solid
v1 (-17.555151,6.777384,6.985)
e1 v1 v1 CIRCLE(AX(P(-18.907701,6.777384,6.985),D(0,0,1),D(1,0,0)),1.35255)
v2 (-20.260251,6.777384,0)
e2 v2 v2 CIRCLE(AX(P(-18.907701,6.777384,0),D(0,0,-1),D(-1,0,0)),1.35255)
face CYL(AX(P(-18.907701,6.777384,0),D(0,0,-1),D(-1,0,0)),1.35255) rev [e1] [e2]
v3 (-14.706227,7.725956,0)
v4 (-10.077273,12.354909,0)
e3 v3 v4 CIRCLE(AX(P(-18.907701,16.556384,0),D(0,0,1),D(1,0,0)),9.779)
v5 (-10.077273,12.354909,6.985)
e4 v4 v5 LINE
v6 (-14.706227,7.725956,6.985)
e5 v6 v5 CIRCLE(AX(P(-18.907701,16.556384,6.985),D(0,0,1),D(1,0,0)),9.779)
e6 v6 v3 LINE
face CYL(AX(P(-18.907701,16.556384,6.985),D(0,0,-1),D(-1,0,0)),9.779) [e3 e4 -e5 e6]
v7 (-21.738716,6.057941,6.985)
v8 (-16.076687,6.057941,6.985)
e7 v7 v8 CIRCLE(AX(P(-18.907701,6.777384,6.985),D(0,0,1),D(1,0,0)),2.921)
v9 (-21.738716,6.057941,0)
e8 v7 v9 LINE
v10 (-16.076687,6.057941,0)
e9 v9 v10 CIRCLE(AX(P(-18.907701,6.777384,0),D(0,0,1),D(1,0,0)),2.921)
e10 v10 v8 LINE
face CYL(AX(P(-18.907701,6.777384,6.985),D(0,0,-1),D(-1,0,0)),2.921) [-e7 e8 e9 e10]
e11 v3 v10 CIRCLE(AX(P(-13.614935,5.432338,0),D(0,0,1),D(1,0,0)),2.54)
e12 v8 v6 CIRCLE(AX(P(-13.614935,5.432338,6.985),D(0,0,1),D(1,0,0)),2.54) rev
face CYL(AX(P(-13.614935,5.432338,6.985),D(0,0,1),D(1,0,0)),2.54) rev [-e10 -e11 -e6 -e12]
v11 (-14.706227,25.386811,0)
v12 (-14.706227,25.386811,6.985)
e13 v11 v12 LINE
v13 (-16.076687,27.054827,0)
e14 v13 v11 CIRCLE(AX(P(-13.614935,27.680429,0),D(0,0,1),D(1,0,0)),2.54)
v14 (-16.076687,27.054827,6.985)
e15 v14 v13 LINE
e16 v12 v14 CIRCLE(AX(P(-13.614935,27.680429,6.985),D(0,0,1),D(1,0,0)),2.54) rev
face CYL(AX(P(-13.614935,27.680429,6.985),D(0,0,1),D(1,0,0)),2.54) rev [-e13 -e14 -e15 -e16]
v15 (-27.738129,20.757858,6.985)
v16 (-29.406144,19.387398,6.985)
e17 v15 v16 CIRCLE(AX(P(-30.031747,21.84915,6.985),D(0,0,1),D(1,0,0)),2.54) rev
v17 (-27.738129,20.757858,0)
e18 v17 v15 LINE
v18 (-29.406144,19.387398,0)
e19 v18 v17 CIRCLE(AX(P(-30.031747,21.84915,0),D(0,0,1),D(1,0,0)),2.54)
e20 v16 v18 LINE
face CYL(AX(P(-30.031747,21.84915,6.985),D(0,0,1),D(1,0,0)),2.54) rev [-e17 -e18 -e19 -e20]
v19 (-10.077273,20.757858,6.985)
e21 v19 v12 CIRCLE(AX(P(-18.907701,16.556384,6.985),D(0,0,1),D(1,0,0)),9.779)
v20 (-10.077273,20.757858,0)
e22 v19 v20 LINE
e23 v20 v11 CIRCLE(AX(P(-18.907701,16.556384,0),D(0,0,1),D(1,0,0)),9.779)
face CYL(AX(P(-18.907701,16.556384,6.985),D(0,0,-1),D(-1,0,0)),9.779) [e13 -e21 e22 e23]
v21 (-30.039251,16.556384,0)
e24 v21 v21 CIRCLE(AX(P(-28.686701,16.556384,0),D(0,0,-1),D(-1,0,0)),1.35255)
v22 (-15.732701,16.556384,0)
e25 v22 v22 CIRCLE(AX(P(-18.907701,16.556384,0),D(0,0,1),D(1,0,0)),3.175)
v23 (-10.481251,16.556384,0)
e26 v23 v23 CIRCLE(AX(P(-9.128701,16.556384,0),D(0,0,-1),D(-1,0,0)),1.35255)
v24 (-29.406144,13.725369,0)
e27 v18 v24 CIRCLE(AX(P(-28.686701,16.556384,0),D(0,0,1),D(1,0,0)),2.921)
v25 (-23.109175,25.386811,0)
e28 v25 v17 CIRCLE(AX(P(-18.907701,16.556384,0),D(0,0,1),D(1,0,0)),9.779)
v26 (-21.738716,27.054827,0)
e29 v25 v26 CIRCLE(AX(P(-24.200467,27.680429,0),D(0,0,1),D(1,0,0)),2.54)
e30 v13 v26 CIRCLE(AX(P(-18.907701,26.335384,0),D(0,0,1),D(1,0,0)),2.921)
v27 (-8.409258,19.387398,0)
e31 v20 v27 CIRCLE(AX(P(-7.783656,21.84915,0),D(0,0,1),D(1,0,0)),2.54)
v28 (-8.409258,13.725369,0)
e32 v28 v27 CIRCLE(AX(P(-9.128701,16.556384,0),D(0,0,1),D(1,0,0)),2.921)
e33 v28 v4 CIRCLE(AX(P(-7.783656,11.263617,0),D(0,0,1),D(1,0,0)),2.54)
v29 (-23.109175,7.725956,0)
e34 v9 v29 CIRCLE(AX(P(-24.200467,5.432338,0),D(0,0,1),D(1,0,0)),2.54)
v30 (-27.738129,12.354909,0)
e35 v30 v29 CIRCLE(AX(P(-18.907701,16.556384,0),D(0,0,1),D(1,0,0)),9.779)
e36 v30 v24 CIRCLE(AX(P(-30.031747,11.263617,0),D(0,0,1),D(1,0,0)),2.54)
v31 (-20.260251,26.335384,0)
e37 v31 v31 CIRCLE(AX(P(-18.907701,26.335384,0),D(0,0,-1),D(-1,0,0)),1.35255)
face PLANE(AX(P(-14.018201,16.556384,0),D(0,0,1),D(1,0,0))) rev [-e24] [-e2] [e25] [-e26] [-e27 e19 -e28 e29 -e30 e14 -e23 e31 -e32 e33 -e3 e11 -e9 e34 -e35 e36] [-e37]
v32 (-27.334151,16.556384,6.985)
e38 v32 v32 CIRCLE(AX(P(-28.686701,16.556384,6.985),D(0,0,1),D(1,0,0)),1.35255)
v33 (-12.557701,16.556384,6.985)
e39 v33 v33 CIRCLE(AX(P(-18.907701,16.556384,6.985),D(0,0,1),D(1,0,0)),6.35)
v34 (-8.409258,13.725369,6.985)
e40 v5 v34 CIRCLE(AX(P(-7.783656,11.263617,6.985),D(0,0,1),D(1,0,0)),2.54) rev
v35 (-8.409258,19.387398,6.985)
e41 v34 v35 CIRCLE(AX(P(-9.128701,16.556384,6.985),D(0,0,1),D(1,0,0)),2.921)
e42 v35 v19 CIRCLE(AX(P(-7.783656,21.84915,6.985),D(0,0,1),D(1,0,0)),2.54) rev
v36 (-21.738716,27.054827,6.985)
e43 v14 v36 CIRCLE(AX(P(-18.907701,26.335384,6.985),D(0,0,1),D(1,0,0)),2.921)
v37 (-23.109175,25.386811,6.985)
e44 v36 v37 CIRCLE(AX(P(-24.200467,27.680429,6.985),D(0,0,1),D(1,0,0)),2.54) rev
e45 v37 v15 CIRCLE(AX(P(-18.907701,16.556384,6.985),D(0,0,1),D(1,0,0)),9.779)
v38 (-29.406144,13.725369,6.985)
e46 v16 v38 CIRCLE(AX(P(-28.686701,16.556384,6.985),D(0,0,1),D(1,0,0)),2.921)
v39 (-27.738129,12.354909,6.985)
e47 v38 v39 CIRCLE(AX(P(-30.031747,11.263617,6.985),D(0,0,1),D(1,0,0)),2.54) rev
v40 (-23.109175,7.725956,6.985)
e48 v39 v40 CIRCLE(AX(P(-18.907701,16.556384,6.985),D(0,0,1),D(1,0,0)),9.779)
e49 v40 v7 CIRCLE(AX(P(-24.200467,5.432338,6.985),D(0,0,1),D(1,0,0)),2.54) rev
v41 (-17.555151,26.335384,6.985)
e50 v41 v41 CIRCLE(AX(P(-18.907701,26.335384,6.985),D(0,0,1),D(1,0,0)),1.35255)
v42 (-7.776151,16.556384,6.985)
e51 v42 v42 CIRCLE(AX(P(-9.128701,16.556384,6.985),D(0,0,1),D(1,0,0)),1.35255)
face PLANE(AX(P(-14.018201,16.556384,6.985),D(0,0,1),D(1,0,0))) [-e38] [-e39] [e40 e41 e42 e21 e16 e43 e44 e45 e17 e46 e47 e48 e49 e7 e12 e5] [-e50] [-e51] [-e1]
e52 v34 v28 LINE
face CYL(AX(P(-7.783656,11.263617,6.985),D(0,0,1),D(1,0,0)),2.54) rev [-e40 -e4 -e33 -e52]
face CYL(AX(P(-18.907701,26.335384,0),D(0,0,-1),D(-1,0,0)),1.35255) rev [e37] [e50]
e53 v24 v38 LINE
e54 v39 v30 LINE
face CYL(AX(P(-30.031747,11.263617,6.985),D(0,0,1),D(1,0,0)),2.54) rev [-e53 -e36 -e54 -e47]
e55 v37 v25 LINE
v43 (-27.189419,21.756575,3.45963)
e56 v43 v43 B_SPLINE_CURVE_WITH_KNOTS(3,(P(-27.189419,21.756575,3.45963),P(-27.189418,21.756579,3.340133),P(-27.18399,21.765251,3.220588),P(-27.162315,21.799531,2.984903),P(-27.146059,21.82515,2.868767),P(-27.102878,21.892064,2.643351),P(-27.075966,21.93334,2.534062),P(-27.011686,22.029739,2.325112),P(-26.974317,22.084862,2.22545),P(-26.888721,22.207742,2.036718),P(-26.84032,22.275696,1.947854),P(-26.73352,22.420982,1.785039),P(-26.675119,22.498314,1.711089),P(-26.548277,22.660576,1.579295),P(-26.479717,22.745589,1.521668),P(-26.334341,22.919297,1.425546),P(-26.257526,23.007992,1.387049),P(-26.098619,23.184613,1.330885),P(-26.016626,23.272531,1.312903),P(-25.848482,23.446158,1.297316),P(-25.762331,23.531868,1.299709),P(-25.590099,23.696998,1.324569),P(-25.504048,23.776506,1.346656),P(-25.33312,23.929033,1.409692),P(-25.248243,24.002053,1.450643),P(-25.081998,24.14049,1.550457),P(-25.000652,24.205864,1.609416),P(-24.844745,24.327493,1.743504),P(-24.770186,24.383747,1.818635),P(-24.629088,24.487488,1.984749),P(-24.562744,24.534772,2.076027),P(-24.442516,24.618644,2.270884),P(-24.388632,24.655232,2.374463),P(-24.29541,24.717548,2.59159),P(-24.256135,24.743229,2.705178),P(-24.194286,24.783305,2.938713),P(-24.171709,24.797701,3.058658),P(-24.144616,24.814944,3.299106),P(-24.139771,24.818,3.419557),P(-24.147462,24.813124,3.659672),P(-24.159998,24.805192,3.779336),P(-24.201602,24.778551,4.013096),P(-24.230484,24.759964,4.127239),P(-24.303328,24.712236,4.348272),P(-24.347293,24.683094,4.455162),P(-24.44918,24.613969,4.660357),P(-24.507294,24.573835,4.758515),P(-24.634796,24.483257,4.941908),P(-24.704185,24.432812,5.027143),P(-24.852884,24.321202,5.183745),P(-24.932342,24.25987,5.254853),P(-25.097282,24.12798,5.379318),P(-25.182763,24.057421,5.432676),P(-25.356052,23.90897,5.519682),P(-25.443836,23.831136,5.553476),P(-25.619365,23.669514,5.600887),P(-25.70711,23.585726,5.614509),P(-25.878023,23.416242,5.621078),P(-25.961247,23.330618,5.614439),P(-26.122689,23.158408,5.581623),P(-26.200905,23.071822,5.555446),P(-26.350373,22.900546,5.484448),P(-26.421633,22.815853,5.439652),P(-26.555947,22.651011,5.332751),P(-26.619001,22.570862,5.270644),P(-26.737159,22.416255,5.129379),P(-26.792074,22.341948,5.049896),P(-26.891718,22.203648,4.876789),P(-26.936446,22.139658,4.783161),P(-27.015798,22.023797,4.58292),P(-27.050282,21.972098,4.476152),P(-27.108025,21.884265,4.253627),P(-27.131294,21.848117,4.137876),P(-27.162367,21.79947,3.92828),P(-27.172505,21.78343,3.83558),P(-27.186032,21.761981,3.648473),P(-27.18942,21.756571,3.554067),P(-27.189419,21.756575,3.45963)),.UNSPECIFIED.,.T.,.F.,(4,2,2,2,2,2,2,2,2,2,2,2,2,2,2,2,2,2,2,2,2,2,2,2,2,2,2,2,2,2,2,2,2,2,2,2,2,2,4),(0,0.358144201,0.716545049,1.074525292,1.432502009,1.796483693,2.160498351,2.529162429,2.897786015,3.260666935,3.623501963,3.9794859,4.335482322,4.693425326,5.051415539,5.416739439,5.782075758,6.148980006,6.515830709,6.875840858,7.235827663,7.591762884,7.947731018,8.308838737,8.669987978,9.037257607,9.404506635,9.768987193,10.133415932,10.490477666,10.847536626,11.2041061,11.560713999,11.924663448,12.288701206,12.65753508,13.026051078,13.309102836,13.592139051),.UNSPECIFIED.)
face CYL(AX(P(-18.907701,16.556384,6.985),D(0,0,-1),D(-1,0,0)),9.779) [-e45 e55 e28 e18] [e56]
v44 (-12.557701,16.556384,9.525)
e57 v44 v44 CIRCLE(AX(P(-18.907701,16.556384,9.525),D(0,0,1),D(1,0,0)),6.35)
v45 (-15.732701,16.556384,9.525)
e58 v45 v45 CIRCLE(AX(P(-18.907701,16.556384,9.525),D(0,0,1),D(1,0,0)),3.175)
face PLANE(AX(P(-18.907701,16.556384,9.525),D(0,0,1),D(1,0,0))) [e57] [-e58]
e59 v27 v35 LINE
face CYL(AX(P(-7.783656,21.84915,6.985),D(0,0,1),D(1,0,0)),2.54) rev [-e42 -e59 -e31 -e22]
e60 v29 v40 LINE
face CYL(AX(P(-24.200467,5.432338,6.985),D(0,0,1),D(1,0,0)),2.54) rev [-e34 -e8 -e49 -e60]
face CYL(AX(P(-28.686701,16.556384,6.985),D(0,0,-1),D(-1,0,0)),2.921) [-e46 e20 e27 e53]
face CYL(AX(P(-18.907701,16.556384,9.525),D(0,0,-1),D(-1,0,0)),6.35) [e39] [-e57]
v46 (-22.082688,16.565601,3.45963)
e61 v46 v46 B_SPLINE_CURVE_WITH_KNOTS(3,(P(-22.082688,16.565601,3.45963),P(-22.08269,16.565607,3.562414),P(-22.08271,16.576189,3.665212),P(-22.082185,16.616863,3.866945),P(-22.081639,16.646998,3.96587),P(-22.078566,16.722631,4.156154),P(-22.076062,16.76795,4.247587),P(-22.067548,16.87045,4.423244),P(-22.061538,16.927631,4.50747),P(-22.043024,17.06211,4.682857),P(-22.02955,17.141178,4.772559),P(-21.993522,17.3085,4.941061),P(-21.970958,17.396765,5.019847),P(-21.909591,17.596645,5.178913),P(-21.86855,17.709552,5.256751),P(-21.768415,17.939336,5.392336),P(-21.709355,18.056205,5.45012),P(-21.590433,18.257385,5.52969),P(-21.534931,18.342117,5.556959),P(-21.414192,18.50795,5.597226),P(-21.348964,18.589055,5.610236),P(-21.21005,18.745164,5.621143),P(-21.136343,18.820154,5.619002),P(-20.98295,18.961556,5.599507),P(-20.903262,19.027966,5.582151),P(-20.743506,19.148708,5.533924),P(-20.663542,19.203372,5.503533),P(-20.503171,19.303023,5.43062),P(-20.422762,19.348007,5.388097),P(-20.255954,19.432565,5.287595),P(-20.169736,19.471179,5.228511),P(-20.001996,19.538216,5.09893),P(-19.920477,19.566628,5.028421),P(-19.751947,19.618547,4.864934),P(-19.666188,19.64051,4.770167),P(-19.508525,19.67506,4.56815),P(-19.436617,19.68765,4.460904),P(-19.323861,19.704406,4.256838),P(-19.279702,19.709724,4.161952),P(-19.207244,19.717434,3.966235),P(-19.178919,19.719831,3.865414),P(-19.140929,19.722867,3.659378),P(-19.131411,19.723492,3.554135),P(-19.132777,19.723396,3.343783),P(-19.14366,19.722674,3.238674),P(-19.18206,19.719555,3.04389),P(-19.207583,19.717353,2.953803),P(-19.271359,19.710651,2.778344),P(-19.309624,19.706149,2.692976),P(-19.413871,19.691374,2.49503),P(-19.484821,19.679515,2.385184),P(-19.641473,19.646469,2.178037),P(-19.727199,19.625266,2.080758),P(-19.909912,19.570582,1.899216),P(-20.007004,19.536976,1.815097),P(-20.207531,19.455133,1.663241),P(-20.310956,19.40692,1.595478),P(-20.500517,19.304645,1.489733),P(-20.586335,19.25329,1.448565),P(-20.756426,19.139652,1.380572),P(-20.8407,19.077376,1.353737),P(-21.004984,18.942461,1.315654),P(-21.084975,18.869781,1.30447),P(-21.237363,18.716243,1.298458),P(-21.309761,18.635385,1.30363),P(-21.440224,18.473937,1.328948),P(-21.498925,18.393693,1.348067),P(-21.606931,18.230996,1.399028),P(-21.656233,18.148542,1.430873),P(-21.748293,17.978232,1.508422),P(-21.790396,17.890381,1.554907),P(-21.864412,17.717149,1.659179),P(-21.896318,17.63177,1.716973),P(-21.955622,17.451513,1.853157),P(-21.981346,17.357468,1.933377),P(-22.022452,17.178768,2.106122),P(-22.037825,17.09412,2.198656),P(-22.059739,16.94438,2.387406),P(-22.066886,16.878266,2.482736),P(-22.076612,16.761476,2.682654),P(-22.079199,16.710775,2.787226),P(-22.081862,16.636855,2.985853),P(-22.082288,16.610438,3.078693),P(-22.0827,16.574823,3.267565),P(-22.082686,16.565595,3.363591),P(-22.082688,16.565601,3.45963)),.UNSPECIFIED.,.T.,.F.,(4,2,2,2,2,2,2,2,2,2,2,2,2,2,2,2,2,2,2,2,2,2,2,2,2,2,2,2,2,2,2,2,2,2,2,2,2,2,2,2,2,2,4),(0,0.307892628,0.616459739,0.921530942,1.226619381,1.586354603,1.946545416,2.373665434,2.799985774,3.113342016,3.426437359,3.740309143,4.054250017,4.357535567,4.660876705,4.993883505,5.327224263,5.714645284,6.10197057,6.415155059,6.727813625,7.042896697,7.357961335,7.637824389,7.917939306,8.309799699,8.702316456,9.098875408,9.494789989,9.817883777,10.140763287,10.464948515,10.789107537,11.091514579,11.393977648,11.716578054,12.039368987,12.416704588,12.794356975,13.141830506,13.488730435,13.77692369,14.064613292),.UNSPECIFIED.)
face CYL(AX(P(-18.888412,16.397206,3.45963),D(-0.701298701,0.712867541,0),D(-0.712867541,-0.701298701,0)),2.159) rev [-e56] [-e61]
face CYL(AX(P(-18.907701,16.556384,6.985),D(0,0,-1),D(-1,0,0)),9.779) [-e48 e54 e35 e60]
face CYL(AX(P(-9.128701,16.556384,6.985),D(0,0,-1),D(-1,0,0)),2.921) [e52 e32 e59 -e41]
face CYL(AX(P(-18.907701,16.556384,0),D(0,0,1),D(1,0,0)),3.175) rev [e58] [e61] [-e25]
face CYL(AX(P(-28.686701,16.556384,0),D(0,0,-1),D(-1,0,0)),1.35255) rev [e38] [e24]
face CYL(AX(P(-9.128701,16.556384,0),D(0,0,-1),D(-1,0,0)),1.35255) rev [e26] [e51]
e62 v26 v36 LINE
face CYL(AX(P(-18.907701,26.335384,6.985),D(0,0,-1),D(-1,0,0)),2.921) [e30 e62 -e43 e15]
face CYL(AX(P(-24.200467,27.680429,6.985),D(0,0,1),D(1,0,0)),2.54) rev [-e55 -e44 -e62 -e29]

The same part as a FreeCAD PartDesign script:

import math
import FreeCAD as App
import Part
import Sketcher
Q = App.Units.Quantity


def edges_at(feature, points):
    """Names of the edges that pass closest to the given points."""
    edges = feature.Shape.Edges
    near = lambda p: min(range(len(edges)), key=lambda i: edges[i].distToShape(Part.Vertex(*p))[0])
    return sorted({f"Edge{near(p) + 1}" for p in points})

doc = App.newDocument("Part")
body = doc.addObject("PartDesign::Body", "Body")

# Sketch on XY plane
sketch1 = body.newObject("Sketcher::SketchObject", "Sketch")
sketch1.AttachmentSupport = (doc.getObject("XY_Plane"), [""])
sketch1.MapMode = "FlatFace"
sketch1.addGeometry(Part.ArcOfCircle(Part.Circle(App.Vector(-18.9, 16.6, 0), App.Vector(0, 0, 1), 9.8), math.radians(107), math.radians(163)), False)
sketch1.addGeometry(Part.ArcOfCircle(Part.Circle(App.Vector(-28.7, 16.6, 0), App.Vector(0, 0, 1), 2.9), math.radians(81), math.radians(279)), False)
sketch1.addGeometry(Part.ArcOfCircle(Part.Circle(App.Vector(-18.9, 16.6, 0), App.Vector(0, 0, 1), 9.8), math.radians(-163), math.radians(-107)), False)
sketch1.addGeometry(Part.ArcOfCircle(Part.Circle(App.Vector(-18.9, 6.8, 0), App.Vector(0, 0, 1), 2.9), math.radians(171), math.radians(369)), False)
sketch1.addGeometry(Part.ArcOfCircle(Part.Circle(App.Vector(-18.9, 16.6, 0), App.Vector(0, 0, 1), 9.8), math.radians(-73), math.radians(-17)), False)
sketch1.addGeometry(Part.ArcOfCircle(Part.Circle(App.Vector(-9.1, 16.6, 0), App.Vector(0, 0, 1), 2.9), math.radians(-99), math.radians(99)), False)
sketch1.addGeometry(Part.ArcOfCircle(Part.Circle(App.Vector(-18.9, 16.6, 0), App.Vector(0, 0, 1), 9.8), math.radians(17), math.radians(73)), False)
sketch1.addGeometry(Part.ArcOfCircle(Part.Circle(App.Vector(-18.9, 26.3, 0), App.Vector(0, 0, 1), 2.9), math.radians(-9), math.radians(189)), False)
sketch1.addConstraint(Sketcher.Constraint("Coincident", 0, 2, 1, 1))
sketch1.addConstraint(Sketcher.Constraint("Coincident", 1, 2, 2, 1))
sketch1.addConstraint(Sketcher.Constraint("Coincident", 2, 2, 3, 1))
sketch1.addConstraint(Sketcher.Constraint("Coincident", 3, 2, 4, 1))
sketch1.addConstraint(Sketcher.Constraint("Coincident", 4, 2, 5, 1))
sketch1.addConstraint(Sketcher.Constraint("Coincident", 5, 2, 6, 1))
sketch1.addConstraint(Sketcher.Constraint("Coincident", 6, 2, 7, 1))
sketch1.addConstraint(Sketcher.Constraint("Coincident", 7, 2, 0, 1))
sketch1.addConstraint(Sketcher.Constraint("Coincident", 2, 3, 0, 3))
sketch1.addConstraint(Sketcher.Constraint("Coincident", 4, 3, 0, 3))
sketch1.addConstraint(Sketcher.Constraint("Coincident", 6, 3, 0, 3))
sketch1.addConstraint(Sketcher.Constraint("Equal", 0, 2))
sketch1.addConstraint(Sketcher.Constraint("Equal", 1, 3))
sketch1.addConstraint(Sketcher.Constraint("Equal", 2, 4))
sketch1.addConstraint(Sketcher.Constraint("Equal", 3, 5))
sketch1.addConstraint(Sketcher.Constraint("Equal", 4, 6))
sketch1.addConstraint(Sketcher.Constraint("Equal", 5, 7))
sketch1.addConstraint(Sketcher.Constraint("Horizontal", 0, 3, 1, 3))
sketch1.addConstraint(Sketcher.Constraint("Horizontal", 4, 3, 5, 3))
sketch1.addConstraint(Sketcher.Constraint("Horizontal", 2, 2, 3, 2))
sketch1.addConstraint(Sketcher.Constraint("Horizontal", 1, 2, 4, 2))
sketch1.addConstraint(Sketcher.Constraint("Horizontal", 6, 2, 7, 2))
sketch1.addConstraint(Sketcher.Constraint("Vertical", 3, 2, 6, 2))
sketch1.addConstraint(Sketcher.Constraint("Radius", 0, Q("0.385 in")))
sketch1.addConstraint(Sketcher.Constraint("Radius", 1, Q("0.115 in")))
sketch1.addConstraint(Sketcher.Constraint("DistanceX", 1, 3, 5, 3, Q("0.77 in")))
sketch1.addConstraint(Sketcher.Constraint("DistanceY", 3, 3, 0, 3, Q("0.385 in")))
sketch1.addConstraint(Sketcher.Constraint("DistanceX", 0, 3, -1, 1, Q("18.907701 mm")))
sketch1.addConstraint(Sketcher.Constraint("DistanceY", -1, 1, 6, 2, Q("25.89913 mm")))
pad1 = body.newObject("PartDesign::Pad", "Pad")
pad1.Profile = sketch1
pad1.Length = Q("0.275 in")
doc.recompute()

fillet = body.newObject("PartDesign::Fillet", "Fillet")
fillet.Base = (pad1, edges_at(pad1, [
    (-16.019, 7.214, 3.493),
    (-21.796, 7.214, 3.493),
    (-28.25, 13.668, 3.493),
    (-28.25, 19.445, 3.493),
    (-21.796, 25.899, 3.493),
    (-16.019, 25.899, 3.493),
    (-9.565, 19.445, 3.493),
    (-9.565, 13.668, 3.493),
]))
fillet.Radius = Q("0.1 in")

# Sketch on XY plane
sketch2 = body.newObject("Sketcher::SketchObject", "Sketch001")
sketch2.AttachmentSupport = (doc.getObject("XY_Plane"), [""])
sketch2.MapMode = "FlatFace"
sketch2.AttachmentOffset = App.Placement(App.Vector(0, 0, 0.275 * 25.4), App.Rotation())
sketch2.addGeometry(Part.Circle(App.Vector(-19, 17, 0), App.Vector(0, 0, 1), 6), False)
sketch2.addConstraint(Sketcher.Constraint("Diameter", 0, Q("0.5 in")))
sketch2.addConstraint(Sketcher.Constraint("DistanceX", 0, 3, -1, 1, Q("18.907701 mm")))
sketch2.addConstraint(Sketcher.Constraint("DistanceY", -1, 1, 0, 3, Q("16.556384 mm")))
pad2 = body.newObject("PartDesign::Pad", "Pad001")
pad2.Profile = sketch2
pad2.Length = Q("0.1 in")

# Sketch on XY plane
sketch3 = body.newObject("Sketcher::SketchObject", "Sketch002")
sketch3.AttachmentSupport = (doc.getObject("XY_Plane"), [""])
sketch3.MapMode = "FlatFace"
sketch3.AttachmentOffset = App.Placement(App.Vector(0, 0, 0.375 * 25.4), App.Rotation())
sketch3.addGeometry(Part.Circle(App.Vector(-18.9, 16.6, 0), App.Vector(0, 0, 1), 3.2), False)
sketch3.addConstraint(Sketcher.Constraint("Diameter", 0, Q("0.25 in")))
sketch3.addConstraint(Sketcher.Constraint("DistanceX", 0, 3, -1, 1, Q("18.907701 mm")))
sketch3.addConstraint(Sketcher.Constraint("DistanceY", -1, 1, 0, 3, Q("16.556384 mm")))
pocket1 = body.newObject("PartDesign::Pocket", "Pocket")
pocket1.Profile = sketch3
pocket1.Length = Q("0.375 in")

# Sketch on XY plane
sketch4 = body.newObject("Sketcher::SketchObject", "Sketch003")
sketch4.AttachmentSupport = (doc.getObject("XY_Plane"), [""])
sketch4.MapMode = "FlatFace"
sketch4.addGeometry(Part.Circle(App.Vector(-18.9, 26.3, 0), App.Vector(0, 0, 1), 1.4), False)
sketch4.addGeometry(Part.Circle(App.Vector(-28.7, 16.6, 0), App.Vector(0, 0, 1), 1.4), False)
sketch4.addGeometry(Part.Circle(App.Vector(-18.9, 6.8, 0), App.Vector(0, 0, 1), 1.4), False)
sketch4.addGeometry(Part.Circle(App.Vector(-9.1, 16.6, 0), App.Vector(0, 0, 1), 1.4), False)
sketch4.addConstraint(Sketcher.Constraint("Equal", 0, 1))
sketch4.addConstraint(Sketcher.Constraint("Equal", 1, 2))
sketch4.addConstraint(Sketcher.Constraint("Equal", 2, 3))
sketch4.addConstraint(Sketcher.Constraint("Horizontal", 1, 3, 3, 3))
sketch4.addConstraint(Sketcher.Constraint("Vertical", 0, 3, 2, 3))
sketch4.addConstraint(Sketcher.Constraint("Diameter", 0, Q("0.1065 in")))
sketch4.addConstraint(Sketcher.Constraint("DistanceY", 2, 3, 0, 3, Q("0.77 in")))
sketch4.addConstraint(Sketcher.Constraint("DistanceX", 1, 3, 3, 3, Q("0.77 in")))
sketch4.addConstraint(Sketcher.Constraint("DistanceX", 1, 3, 0, 3, Q("0.385 in")))
sketch4.addConstraint(Sketcher.Constraint("DistanceY", 1, 3, 0, 3, Q("0.385 in")))
sketch4.addConstraint(Sketcher.Constraint("DistanceX", 0, 3, -1, 1, Q("18.907701 mm")))
sketch4.addConstraint(Sketcher.Constraint("DistanceY", -1, 1, 0, 3, Q("26.335384 mm")))
doc.recompute()
hole = body.newObject("PartDesign::Hole", "Hole")
hole.Profile = sketch4
hole.ThreadType = "None"
hole.Diameter = Q("0.1065 in")
hole.DepthType = "ThroughAll"
hole.Reversed = True

# Sketch on an angled plane
sketch5 = body.newObject("Sketcher::SketchObject", "Sketch004")
sketch5.Placement = App.Placement(App.Vector(-24.434267, 24.837342, 0), App.Rotation(App.Vector(0.712867541, 0.701298701, 0), App.Vector(0, 0, -0.999999999), App.Vector(-0.701298701, 0.712867541, 0), "ZXY"))
sketch5.addGeometry(Part.Circle(App.Vector(-2, -3.5, 0), App.Vector(0, 0, 1), 2.2), False)
sketch5.addConstraint(Sketcher.Constraint("Diameter", 0, Q("0.17 in")))
sketch5.addConstraint(Sketcher.Constraint("DistanceY", 0, 3, -1, 1, Q("3.45963 mm")))
sketch5.addConstraint(Sketcher.Constraint("DistanceX", 0, 3, -1, 1, Q("1.965597 mm")))
pocket2 = body.newObject("PartDesign::Pocket", "Pocket001")
pocket2.Profile = sketch5
pocket2.Length = Q("0.39 in")

doc.recompute()
